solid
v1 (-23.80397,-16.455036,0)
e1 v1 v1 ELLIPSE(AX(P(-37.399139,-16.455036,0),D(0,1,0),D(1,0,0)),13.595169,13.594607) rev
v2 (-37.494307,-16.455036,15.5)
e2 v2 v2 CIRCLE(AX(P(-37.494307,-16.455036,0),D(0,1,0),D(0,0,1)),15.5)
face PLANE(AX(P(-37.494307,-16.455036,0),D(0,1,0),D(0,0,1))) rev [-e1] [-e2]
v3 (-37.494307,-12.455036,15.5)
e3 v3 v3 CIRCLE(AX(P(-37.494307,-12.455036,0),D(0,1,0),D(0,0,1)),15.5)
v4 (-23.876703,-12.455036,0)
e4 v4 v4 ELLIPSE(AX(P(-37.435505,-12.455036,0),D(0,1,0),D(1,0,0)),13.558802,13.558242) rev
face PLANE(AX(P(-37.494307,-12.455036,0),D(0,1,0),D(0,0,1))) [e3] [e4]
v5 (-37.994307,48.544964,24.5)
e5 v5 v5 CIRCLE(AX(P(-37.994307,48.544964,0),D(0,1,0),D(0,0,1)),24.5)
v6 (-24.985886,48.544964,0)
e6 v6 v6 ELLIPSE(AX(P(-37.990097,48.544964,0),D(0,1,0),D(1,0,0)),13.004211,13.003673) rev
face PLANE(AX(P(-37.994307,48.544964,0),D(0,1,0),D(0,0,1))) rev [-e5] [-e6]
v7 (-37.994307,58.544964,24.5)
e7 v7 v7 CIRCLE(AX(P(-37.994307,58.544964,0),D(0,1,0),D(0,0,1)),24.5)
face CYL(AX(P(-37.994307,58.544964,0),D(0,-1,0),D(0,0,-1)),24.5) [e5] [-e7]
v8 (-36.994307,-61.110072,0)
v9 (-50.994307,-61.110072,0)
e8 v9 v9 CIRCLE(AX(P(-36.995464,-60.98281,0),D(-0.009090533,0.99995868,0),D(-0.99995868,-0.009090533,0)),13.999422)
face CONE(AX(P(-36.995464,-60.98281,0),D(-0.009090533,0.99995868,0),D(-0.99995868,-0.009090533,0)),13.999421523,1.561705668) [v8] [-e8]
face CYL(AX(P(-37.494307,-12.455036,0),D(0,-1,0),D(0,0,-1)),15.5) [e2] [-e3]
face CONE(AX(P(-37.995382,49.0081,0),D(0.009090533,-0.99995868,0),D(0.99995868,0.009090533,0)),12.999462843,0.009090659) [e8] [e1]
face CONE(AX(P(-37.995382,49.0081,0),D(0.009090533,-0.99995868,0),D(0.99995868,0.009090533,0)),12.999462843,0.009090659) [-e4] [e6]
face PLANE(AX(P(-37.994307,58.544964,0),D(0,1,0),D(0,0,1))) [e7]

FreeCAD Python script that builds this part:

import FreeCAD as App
import Part
import Sketcher

doc = App.newDocument("Part")
params = doc.addObject("Spreadsheet::Sheet", "Params")
for row, (alias, value) in enumerate([
    ("sketch1_width", "14 mm"),
    ("sketch1_width2", "13 mm"),
    ("sketch1_height", "110 mm"),
    ("revolution_angle", "360 deg"),
    ("sketch2_diameter", "49 mm"),
    ("pad1_length", "10 mm"),
    ("sketch3_diameter", "31 mm"),
    ("pad2_length", "4 mm"),
], start=1):
    params.set(f"A{row}", alias)
    params.set(f"B{row}", "=" + value)
    params.setAlias(f"B{row}", alias)

body = doc.addObject("PartDesign::Body", "Body")

# Sketch on XY plane
sketch1 = doc.addObject("Sketcher::SketchObject", "Sketch")
body.addObject(sketch1)
sketch1.AttachmentSupport = (doc.XY_Plane, [""])
sketch1.MapMode = "FlatFace"
sketch1.addGeometry([
    Part.LineSegment(App.Vector(-51, 49, 0), App.Vector(-51, -61, 0)),
    Part.LineSegment(App.Vector(-51, -61, 0), App.Vector(-37, -61, 0)),
    Part.LineSegment(App.Vector(-37, -61, 0), App.Vector(-38, 49, 0)),
    Part.LineSegment(App.Vector(-38, 49, 0), App.Vector(-51, 49, 0)),
], False)
sketch1.addGeometry(Part.LineSegment(App.Vector(-38, 49, 0), App.Vector(-37, -61, 0)), True)  # axis
sketch1.addConstraint([
    Sketcher.Constraint("Coincident", 0, 2, 1, 1),
    Sketcher.Constraint("Coincident", 1, 2, 2, 1),
    Sketcher.Constraint("Coincident", 2, 2, 3, 1),
    Sketcher.Constraint("Coincident", 3, 2, 0, 1),
    Sketcher.Constraint("Vertical", 0),
    Sketcher.Constraint("Horizontal", 1),
    Sketcher.Constraint("Horizontal", 3),
    Sketcher.Constraint("Coincident", 4, 2, 1, 2),
    Sketcher.Constraint("Parallel", 2, 4),
    Sketcher.Constraint("DistanceX", 1, 1, 1, 2, 14.0),
    Sketcher.Constraint("DistanceX", 3, 2, 3, 1, 13.0),
    Sketcher.Constraint("DistanceY", 0, 2, 0, 1, 110.0),
    Sketcher.Constraint("DistanceY", -1, 1, 4, 1, 49.0081),
    Sketcher.Constraint("DistanceX", 4, 1, -1, 1, 37.995382),
    Sketcher.Constraint("DistanceY", 4, 2, 4, 1, 110.118172),
])
sketch1.setExpression("Constraints[9]", "Params.sketch1_width")
sketch1.setExpression("Constraints[10]", "Params.sketch1_width2")
sketch1.setExpression("Constraints[11]", "Params.sketch1_height")
revolution = doc.addObject("PartDesign::Revolution", "Revolution")
body.addObject(revolution)
revolution.Profile = sketch1
revolution.ReferenceAxis = (sketch1, ["Axis0"])
revolution.setExpression("Angle", "Params.revolution_angle")

# Sketch on XZ plane
sketch2 = doc.addObject("Sketcher::SketchObject", "Sketch001")
body.addObject(sketch2)
sketch2.AttachmentSupport = (doc.XZ_Plane, [""])
sketch2.MapMode = "FlatFace"
sketch2.AttachmentOffset = App.Placement(App.Vector(0, 0, -48.544964), App.Rotation())
sketch2.addGeometry(Part.Circle(App.Vector(-38, 0, 0), App.Vector(0, 0, 1), 24), False)
sketch2.addConstraint([
    Sketcher.Constraint("PointOnObject", 0, 3, -1),
    Sketcher.Constraint("Diameter", 0, 49.0),
    Sketcher.Constraint("DistanceX", 0, 3, -1, 1, 37.994307),
])
sketch2.setExpression("Constraints[1]", "Params.sketch2_diameter")
pad1 = doc.addObject("PartDesign::Pad", "Pad")
body.addObject(pad1)
pad1.Profile = sketch2
pad1.setExpression("Length", "Params.pad1_length")
pad1.Reversed = True

# Sketch on XZ plane
sketch3 = doc.addObject("Sketcher::SketchObject", "Sketch002")
body.addObject(sketch3)
sketch3.AttachmentSupport = (doc.XZ_Plane, [""])
sketch3.MapMode = "FlatFace"
sketch3.AttachmentOffset = App.Placement(App.Vector(0, 0, 16.455036), App.Rotation())
sketch3.addGeometry(Part.Circle(App.Vector(-37, 0, 0), App.Vector(0, 0, 1), 16), False)
sketch3.addConstraint([
    Sketcher.Constraint("PointOnObject", 0, 3, -1),
    Sketcher.Constraint("Diameter", 0, 31.0),
    Sketcher.Constraint("DistanceX", 0, 3, -1, 1, 37.494307),
])
sketch3.setExpression("Constraints[1]", "Params.sketch3_diameter")
pad2 = doc.addObject("PartDesign::Pad", "Pad001")
body.addObject(pad2)
pad2.Profile = sketch3
pad2.setExpression("Length", "Params.pad2_length")
pad2.Reversed = True

doc.recompute()
